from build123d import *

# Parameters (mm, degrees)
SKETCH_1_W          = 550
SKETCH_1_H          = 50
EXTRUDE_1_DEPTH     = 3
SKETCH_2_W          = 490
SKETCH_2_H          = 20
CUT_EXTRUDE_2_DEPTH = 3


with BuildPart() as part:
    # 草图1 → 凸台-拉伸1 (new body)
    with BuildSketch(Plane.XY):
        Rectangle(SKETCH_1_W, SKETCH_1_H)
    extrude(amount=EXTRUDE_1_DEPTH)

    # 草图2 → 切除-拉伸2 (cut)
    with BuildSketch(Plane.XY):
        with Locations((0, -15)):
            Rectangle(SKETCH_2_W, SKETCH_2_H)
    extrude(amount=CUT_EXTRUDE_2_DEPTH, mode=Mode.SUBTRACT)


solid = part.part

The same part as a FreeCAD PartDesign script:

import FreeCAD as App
import Part
import Sketcher
Q = App.Units.Quantity

doc = App.newDocument("Part")
body = doc.addObject("PartDesign::Body", "Body")

# Sketch on XY plane
sketch1 = body.newObject("Sketcher::SketchObject", "Sketch")
sketch1.AttachmentSupport = (doc.getObject("XY_Plane"), [""])
sketch1.MapMode = "FlatFace"
sketch1.addGeometry([
    Part.LineSegment(App.Vector(-275, 25, 0), App.Vector(-275, -25, 0)),
    Part.LineSegment(App.Vector(-275, -25, 0), App.Vector(275, -25, 0)),
    Part.LineSegment(App.Vector(275, -25, 0), App.Vector(275, 25, 0)),
    Part.LineSegment(App.Vector(275, 25, 0), App.Vector(-275, 25, 0)),
], False)
sketch1.addConstraint([
    Sketcher.Constraint("Coincident", 0, 2, 1, 1),
    Sketcher.Constraint("Coincident", 1, 2, 2, 1),
    Sketcher.Constraint("Coincident", 2, 2, 3, 1),
    Sketcher.Constraint("Coincident", 3, 2, 0, 1),
    Sketcher.Constraint("Vertical", 0),
    Sketcher.Constraint("Horizontal", 1),
    Sketcher.Constraint("Vertical", 2),
    Sketcher.Constraint("Horizontal", 3),
    Sketcher.Constraint("Symmetric", 0, 2, 2, 2, -1, 1),
    Sketcher.Constraint("DistanceX", 1, 1, 1, 2, Q("550 mm")),
    Sketcher.Constraint("DistanceY", 0, 2, 0, 1, Q("50 mm")),
])
pad1 = body.newObject("PartDesign::Pad", "Pad")
pad1.Profile = sketch1
pad1.Length = 3

# Sketch on XY plane
sketch2 = body.newObject("Sketcher::SketchObject", "Sketch001")
sketch2.AttachmentSupport = (doc.getObject("XY_Plane"), [""])
sketch2.MapMode = "FlatFace"
sketch2.addGeometry([
    Part.LineSegment(App.Vector(-245, -5, 0), App.Vector(-245, -25, 0)),
    Part.LineSegment(App.Vector(-245, -25, 0), App.Vector(245, -25, 0)),
    Part.LineSegment(App.Vector(245, -25, 0), App.Vector(245, -5, 0)),
    Part.LineSegment(App.Vector(245, -5, 0), App.Vector(-245, -5, 0)),
], False)
sketch2.addConstraint([
    Sketcher.Constraint("Coincident", 0, 2, 1, 1),
    Sketcher.Constraint("Coincident", 1, 2, 2, 1),
    Sketcher.Constraint("Coincident", 2, 2, 3, 1),
    Sketcher.Constraint("Coincident", 3, 2, 0, 1),
    Sketcher.Constraint("Vertical", 0),
    Sketcher.Constraint("Horizontal", 1),
    Sketcher.Constraint("Vertical", 2),
    Sketcher.Constraint("Horizontal", 3),
    Sketcher.Constraint("DistanceX", 1, 1, 1, 2, Q("490 mm")),
    Sketcher.Constraint("DistanceY", 0, 2, 0, 1, Q("20 mm")),
    Sketcher.Constraint("DistanceX", 0, 2, -1, 1, Q("245 mm")),
    Sketcher.Constraint("DistanceY", 0, 2, -1, 1, Q("25 mm")),
])
pocket1 = body.newObject("PartDesign::Pocket", "Pocket")
pocket1.Profile = sketch2
pocket1.Length = 3
pocket1.Reversed = True

doc.recompute()
